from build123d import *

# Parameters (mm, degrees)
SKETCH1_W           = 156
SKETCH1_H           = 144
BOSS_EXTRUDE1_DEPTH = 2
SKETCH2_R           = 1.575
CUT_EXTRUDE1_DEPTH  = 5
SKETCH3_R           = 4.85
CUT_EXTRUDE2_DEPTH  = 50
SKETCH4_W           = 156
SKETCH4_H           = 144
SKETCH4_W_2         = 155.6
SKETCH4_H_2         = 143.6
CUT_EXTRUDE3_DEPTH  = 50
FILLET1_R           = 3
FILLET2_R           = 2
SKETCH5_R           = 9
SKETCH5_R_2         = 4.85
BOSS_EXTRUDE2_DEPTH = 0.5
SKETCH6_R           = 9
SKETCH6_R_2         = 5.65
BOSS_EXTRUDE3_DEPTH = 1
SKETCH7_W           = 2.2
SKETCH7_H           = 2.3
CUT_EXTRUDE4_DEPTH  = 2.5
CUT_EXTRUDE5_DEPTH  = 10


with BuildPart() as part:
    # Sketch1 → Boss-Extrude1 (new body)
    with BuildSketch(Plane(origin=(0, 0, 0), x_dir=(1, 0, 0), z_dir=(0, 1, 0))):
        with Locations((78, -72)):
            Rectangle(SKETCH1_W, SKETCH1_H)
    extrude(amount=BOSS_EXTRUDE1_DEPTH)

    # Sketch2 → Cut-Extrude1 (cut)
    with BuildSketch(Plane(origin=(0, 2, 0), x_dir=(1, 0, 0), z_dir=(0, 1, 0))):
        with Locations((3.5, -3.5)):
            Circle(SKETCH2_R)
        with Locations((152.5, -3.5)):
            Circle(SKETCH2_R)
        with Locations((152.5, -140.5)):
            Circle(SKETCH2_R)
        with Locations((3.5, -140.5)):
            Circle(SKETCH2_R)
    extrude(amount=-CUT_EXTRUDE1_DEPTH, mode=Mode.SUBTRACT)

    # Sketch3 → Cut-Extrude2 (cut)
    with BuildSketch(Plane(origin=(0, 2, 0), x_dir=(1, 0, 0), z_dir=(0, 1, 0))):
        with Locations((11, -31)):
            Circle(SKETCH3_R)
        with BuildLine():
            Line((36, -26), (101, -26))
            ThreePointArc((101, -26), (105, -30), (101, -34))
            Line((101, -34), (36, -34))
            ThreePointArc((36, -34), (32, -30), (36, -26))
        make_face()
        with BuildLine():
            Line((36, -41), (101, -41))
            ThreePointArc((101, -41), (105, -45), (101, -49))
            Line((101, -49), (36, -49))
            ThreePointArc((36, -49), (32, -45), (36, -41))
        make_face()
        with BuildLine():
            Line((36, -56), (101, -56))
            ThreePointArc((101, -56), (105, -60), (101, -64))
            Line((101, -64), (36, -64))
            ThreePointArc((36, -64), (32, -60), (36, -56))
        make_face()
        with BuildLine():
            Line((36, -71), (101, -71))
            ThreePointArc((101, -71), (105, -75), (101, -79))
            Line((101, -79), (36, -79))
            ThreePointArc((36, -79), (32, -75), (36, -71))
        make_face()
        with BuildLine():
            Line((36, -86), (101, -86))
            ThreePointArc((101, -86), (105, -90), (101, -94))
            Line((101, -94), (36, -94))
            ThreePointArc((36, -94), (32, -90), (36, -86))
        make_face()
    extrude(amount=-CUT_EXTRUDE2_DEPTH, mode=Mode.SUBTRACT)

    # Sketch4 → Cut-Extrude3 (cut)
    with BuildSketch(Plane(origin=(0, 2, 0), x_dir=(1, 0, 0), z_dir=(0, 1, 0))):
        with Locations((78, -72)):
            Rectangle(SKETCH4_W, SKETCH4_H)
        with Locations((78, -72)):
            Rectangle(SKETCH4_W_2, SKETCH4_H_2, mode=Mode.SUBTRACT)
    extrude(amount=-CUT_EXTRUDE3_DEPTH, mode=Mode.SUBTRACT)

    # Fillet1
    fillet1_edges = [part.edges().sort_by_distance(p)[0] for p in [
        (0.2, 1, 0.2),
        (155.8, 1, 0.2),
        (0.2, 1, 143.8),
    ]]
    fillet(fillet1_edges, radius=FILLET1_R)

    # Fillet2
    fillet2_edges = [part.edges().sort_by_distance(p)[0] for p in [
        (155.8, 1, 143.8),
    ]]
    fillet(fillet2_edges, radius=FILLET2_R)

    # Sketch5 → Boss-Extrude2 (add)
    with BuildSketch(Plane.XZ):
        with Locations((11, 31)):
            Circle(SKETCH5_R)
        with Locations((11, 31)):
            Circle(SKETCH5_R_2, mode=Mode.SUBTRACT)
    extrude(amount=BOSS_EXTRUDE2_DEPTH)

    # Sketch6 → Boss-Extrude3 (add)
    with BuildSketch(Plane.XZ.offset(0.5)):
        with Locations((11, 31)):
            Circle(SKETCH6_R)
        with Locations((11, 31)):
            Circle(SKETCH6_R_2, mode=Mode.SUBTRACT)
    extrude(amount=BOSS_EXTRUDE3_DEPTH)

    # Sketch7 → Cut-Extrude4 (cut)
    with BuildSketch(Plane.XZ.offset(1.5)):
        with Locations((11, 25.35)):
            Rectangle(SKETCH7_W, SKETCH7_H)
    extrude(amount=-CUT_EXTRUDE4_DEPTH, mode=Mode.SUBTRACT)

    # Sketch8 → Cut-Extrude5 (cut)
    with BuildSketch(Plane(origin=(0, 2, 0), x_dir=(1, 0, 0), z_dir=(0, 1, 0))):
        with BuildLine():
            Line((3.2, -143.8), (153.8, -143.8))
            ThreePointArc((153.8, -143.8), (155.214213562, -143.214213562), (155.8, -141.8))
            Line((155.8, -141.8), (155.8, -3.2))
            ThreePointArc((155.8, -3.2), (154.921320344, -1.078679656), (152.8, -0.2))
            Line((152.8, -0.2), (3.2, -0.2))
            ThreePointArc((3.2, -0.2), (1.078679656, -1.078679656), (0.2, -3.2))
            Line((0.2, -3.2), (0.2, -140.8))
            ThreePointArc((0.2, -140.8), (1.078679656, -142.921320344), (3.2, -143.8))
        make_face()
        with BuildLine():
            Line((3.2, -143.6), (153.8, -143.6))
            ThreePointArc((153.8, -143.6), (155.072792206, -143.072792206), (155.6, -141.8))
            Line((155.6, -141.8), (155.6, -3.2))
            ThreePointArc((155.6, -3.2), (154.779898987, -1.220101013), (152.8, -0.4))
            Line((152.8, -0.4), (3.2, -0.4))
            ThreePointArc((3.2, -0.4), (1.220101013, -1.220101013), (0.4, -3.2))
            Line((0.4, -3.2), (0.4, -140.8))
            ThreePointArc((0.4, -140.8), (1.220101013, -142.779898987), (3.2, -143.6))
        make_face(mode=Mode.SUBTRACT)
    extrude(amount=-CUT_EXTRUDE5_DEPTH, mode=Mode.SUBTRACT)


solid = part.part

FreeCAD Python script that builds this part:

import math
import FreeCAD as App
import Part
import Sketcher
from FreeCAD import Vector
Q = App.Units.Quantity


def edges_at(feature, points):
    """Names of the edges that pass closest to the given points."""
    edges = feature.Shape.Edges
    near = lambda p: min(range(len(edges)), key=lambda i: edges[i].distToShape(Part.Vertex(*p))[0])
    return sorted({f"Edge{near(p) + 1}" for p in points})


def add_polygon(sketch, points):
    """Adds a closed chain of lines whose ends are joined by coincident constraints."""
    first, n = sketch.GeometryCount, len(points)
    for a, b in zip(points, points[1:] + points[:1]):
        sketch.addGeometry(Part.LineSegment(App.Vector(*a, 0), App.Vector(*b, 0)), False)
    for i in range(n):
        sketch.addConstraint(Sketcher.Constraint("Coincident", first + i, 2, first + (i + 1) % n, 1))

doc = App.newDocument("Part")
body = doc.addObject("PartDesign::Body", "Body")

# Sketch on XZ plane
sketch1 = body.newObject("Sketcher::SketchObject", "Sketch")
sketch1.AttachmentSupport = (doc.getObject("XZ_Plane"), [""])
sketch1.MapMode = "FlatFace"
add_polygon(sketch1, [(0, 0), (0, 144), (156, 144), (156, 0)])  # lines 0-3
sketch1.addConstraint(Sketcher.Constraint("Vertical", 0))
sketch1.addConstraint(Sketcher.Constraint("Horizontal", 1))
sketch1.addConstraint(Sketcher.Constraint("Vertical", 2))
sketch1.addConstraint(Sketcher.Constraint("Horizontal", 3))
sketch1.addConstraint(Sketcher.Constraint("Coincident", 3, 2, -1, 1))
sketch1.addConstraint(Sketcher.Constraint("DistanceX", 1, 1, 1, 2, Q("156 mm")))
sketch1.addConstraint(Sketcher.Constraint("DistanceY", 0, 1, 0, 2, Q("144 mm")))
pad1 = body.newObject("PartDesign::Pad", "Pad")
pad1.Profile = sketch1
pad1.Length = 2
pad1.Reversed = True

# Sketch on XZ plane
sketch2 = body.newObject("Sketcher::SketchObject", "Sketch001")
sketch2.AttachmentSupport = (doc.getObject("XZ_Plane"), [""])
sketch2.MapMode = "FlatFace"
sketch2.AttachmentOffset = App.Placement(Vector(0, 0, -2), App.Rotation())
sketch2.addGeometry(Part.Circle(Vector(3.5, 3.5, 0), Vector(0, 0, 1), 1.6), False)
sketch2.addGeometry(Part.Circle(Vector(152.5, 3.5, 0), Vector(0, 0, 1), 1.6), False)
sketch2.addGeometry(Part.Circle(Vector(152.5, 140.5, 0), Vector(0, 0, 1), 1.6), False)
sketch2.addGeometry(Part.Circle(Vector(3.5, 140.5, 0), Vector(0, 0, 1), 1.6), False)
sketch2.addConstraint(Sketcher.Constraint("Equal", 0, 1))
sketch2.addConstraint(Sketcher.Constraint("Equal", 1, 2))
sketch2.addConstraint(Sketcher.Constraint("Equal", 2, 3))
sketch2.addConstraint(Sketcher.Constraint("Horizontal", 0, 3, 1, 3))
sketch2.addConstraint(Sketcher.Constraint("Horizontal", 2, 3, 3, 3))
sketch2.addConstraint(Sketcher.Constraint("Vertical", 1, 3, 2, 3))
sketch2.addConstraint(Sketcher.Constraint("Vertical", 0, 3, 3, 3))
sketch2.addConstraint(Sketcher.Constraint("Diameter", 0, Q("3.15 mm")))
sketch2.addConstraint(Sketcher.Constraint("DistanceX", 0, 3, 1, 3, Q("149 mm")))
sketch2.addConstraint(Sketcher.Constraint("DistanceY", 1, 3, 2, 3, Q("137 mm")))
sketch2.addConstraint(Sketcher.Constraint("DistanceX", -1, 1, 0, 3, Q("3.5 mm")))
sketch2.addConstraint(Sketcher.Constraint("DistanceY", -1, 1, 0, 3, Q("3.5 mm")))
pocket1 = body.newObject("PartDesign::Pocket", "Pocket")
pocket1.Profile = sketch2
pocket1.Length = 5
pocket1.Reversed = True

# Sketch on XZ plane
sketch3 = body.newObject("Sketcher::SketchObject", "Sketch002")
sketch3.AttachmentSupport = (doc.getObject("XZ_Plane"), [""])
sketch3.MapMode = "FlatFace"
sketch3.AttachmentOffset = App.Placement(Vector(0, 0, -2), App.Rotation())
sketch3.addGeometry(Part.Circle(Vector(11, 31, 0), Vector(0, 0, 1), 4.8), False)
sketch3.addGeometry(Part.LineSegment(Vector(101, 26, 0), Vector(36, 26, 0)), False)
sketch3.addGeometry(Part.ArcOfCircle(Part.Circle(Vector(36, 30, 0), Vector(0, 0, 1), 4), math.radians(90), math.radians(270)), False)
sketch3.addGeometry(Part.LineSegment(Vector(36, 34, 0), Vector(101, 34, 0)), False)
sketch3.addGeometry(Part.ArcOfCircle(Part.Circle(Vector(101, 30, 0), Vector(0, 0, 1), 4), math.radians(-90), math.radians(90)), False)
sketch3.addGeometry(Part.LineSegment(Vector(101, 41, 0), Vector(36, 41, 0)), False)
sketch3.addGeometry(Part.ArcOfCircle(Part.Circle(Vector(36, 45, 0), Vector(0, 0, 1), 4), math.radians(90), math.radians(270)), False)
sketch3.addGeometry(Part.LineSegment(Vector(36, 49, 0), Vector(101, 49, 0)), False)
sketch3.addGeometry(Part.ArcOfCircle(Part.Circle(Vector(101, 45, 0), Vector(0, 0, 1), 4), math.radians(-90), math.radians(90)), False)
sketch3.addGeometry(Part.LineSegment(Vector(101, 56, 0), Vector(36, 56, 0)), False)
sketch3.addGeometry(Part.ArcOfCircle(Part.Circle(Vector(36, 60, 0), Vector(0, 0, 1), 4), math.radians(90), math.radians(270)), False)
sketch3.addGeometry(Part.LineSegment(Vector(36, 64, 0), Vector(101, 64, 0)), False)
sketch3.addGeometry(Part.ArcOfCircle(Part.Circle(Vector(101, 60, 0), Vector(0, 0, 1), 4), math.radians(-90), math.radians(90)), False)
sketch3.addGeometry(Part.LineSegment(Vector(101, 71, 0), Vector(36, 71, 0)), False)
sketch3.addGeometry(Part.ArcOfCircle(Part.Circle(Vector(36, 75, 0), Vector(0, 0, 1), 4), math.radians(90), math.radians(270)), False)
sketch3.addGeometry(Part.LineSegment(Vector(36, 79, 0), Vector(101, 79, 0)), False)
sketch3.addGeometry(Part.ArcOfCircle(Part.Circle(Vector(101, 75, 0), Vector(0, 0, 1), 4), math.radians(-90), math.radians(90)), False)
sketch3.addGeometry(Part.LineSegment(Vector(101, 86, 0), Vector(36, 86, 0)), False)
sketch3.addGeometry(Part.ArcOfCircle(Part.Circle(Vector(36, 90, 0), Vector(0, 0, 1), 4), math.radians(90), math.radians(270)), False)
sketch3.addGeometry(Part.LineSegment(Vector(36, 94, 0), Vector(101, 94, 0)), False)
sketch3.addGeometry(Part.ArcOfCircle(Part.Circle(Vector(101, 90, 0), Vector(0, 0, 1), 4), math.radians(-90), math.radians(90)), False)
sketch3.addConstraint(Sketcher.Constraint("Tangent", 1, 2, 2, 2))
sketch3.addConstraint(Sketcher.Constraint("Tangent", 2, 1, 3, 1))
sketch3.addConstraint(Sketcher.Constraint("Tangent", 3, 2, 4, 2))
sketch3.addConstraint(Sketcher.Constraint("Tangent", 4, 1, 1, 1))
sketch3.addConstraint(Sketcher.Constraint("Tangent", 5, 2, 6, 2))
sketch3.addConstraint(Sketcher.Constraint("Tangent", 6, 1, 7, 1))
sketch3.addConstraint(Sketcher.Constraint("Tangent", 7, 2, 8, 2))
sketch3.addConstraint(Sketcher.Constraint("Tangent", 8, 1, 5, 1))
sketch3.addConstraint(Sketcher.Constraint("Tangent", 9, 2, 10, 2))
sketch3.addConstraint(Sketcher.Constraint("Tangent", 10, 1, 11, 1))
sketch3.addConstraint(Sketcher.Constraint("Tangent", 11, 2, 12, 2))
sketch3.addConstraint(Sketcher.Constraint("Tangent", 12, 1, 9, 1))
sketch3.addConstraint(Sketcher.Constraint("Tangent", 13, 2, 14, 2))
sketch3.addConstraint(Sketcher.Constraint("Tangent", 14, 1, 15, 1))
sketch3.addConstraint(Sketcher.Constraint("Tangent", 15, 2, 16, 2))
sketch3.addConstraint(Sketcher.Constraint("Tangent", 16, 1, 13, 1))
sketch3.addConstraint(Sketcher.Constraint("Tangent", 17, 2, 18, 2))
sketch3.addConstraint(Sketcher.Constraint("Tangent", 18, 1, 19, 1))
sketch3.addConstraint(Sketcher.Constraint("Tangent", 19, 2, 20, 2))
sketch3.addConstraint(Sketcher.Constraint("Tangent", 20, 1, 17, 1))
sketch3.addConstraint(Sketcher.Constraint("Horizontal", 1))
sketch3.addConstraint(Sketcher.Constraint("Horizontal", 3))
sketch3.addConstraint(Sketcher.Constraint("Horizontal", 5))
sketch3.addConstraint(Sketcher.Constraint("Horizontal", 7))
sketch3.addConstraint(Sketcher.Constraint("Horizontal", 9))
sketch3.addConstraint(Sketcher.Constraint("Horizontal", 11))
sketch3.addConstraint(Sketcher.Constraint("Horizontal", 13))
sketch3.addConstraint(Sketcher.Constraint("Horizontal", 15))
sketch3.addConstraint(Sketcher.Constraint("Horizontal", 17))
sketch3.addConstraint(Sketcher.Constraint("Horizontal", 19))
sketch3.addConstraint(Sketcher.Constraint("Equal", 4, 6))
sketch3.addConstraint(Sketcher.Constraint("Equal", 8, 10))
sketch3.addConstraint(Sketcher.Constraint("Equal", 12, 14))
sketch3.addConstraint(Sketcher.Constraint("Equal", 16, 18))
sketch3.addConstraint(Sketcher.Constraint("Vertical", 2, 3, 6, 3))
sketch3.addConstraint(Sketcher.Constraint("Vertical", 4, 3, 8, 3))
sketch3.addConstraint(Sketcher.Constraint("Vertical", 6, 3, 10, 3))
sketch3.addConstraint(Sketcher.Constraint("Vertical", 8, 3, 12, 3))
sketch3.addConstraint(Sketcher.Constraint("Vertical", 10, 3, 14, 3))
sketch3.addConstraint(Sketcher.Constraint("Vertical", 12, 3, 16, 3))
sketch3.addConstraint(Sketcher.Constraint("Vertical", 14, 3, 18, 3))
sketch3.addConstraint(Sketcher.Constraint("Vertical", 16, 3, 20, 3))
sketch3.addConstraint(Sketcher.Constraint("Radius", 2, Q("4 mm")))
sketch3.addConstraint(Sketcher.Constraint("Diameter", 0, Q("9.7 mm")))
sketch3.addConstraint(Sketcher.Constraint("DistanceX", 1, 2, 1, 1, Q("65 mm")))
sketch3.addConstraint(Sketcher.Constraint("DistanceX", -1, 1, 0, 3, Q("11 mm")))
sketch3.addConstraint(Sketcher.Constraint("DistanceY", -1, 1, 0, 3, Q("31 mm")))
sketch3.addConstraint(Sketcher.Constraint("DistanceX", -1, 1, 2, 3, Q("36 mm")))
sketch3.addConstraint(Sketcher.Constraint("DistanceY", -1, 1, 2, 3, Q("30 mm")))
sketch3.addConstraint(Sketcher.Constraint("DistanceY", -1, 1, 6, 3, Q("45 mm")))
sketch3.addConstraint(Sketcher.Constraint("DistanceY", -1, 1, 10, 3, Q("60 mm")))
sketch3.addConstraint(Sketcher.Constraint("DistanceY", -1, 1, 14, 3, Q("75 mm")))
sketch3.addConstraint(Sketcher.Constraint("DistanceY", -1, 1, 18, 3, Q("90 mm")))
pocket2 = body.newObject("PartDesign::Pocket", "Pocket001")
pocket2.Profile = sketch3
pocket2.Length = 50
pocket2.Reversed = True

# Sketch on XZ plane
sketch4 = body.newObject("Sketcher::SketchObject", "Sketch003")
sketch4.AttachmentSupport = (doc.getObject("XZ_Plane"), [""])
sketch4.MapMode = "FlatFace"
sketch4.AttachmentOffset = App.Placement(Vector(0, 0, -2), App.Rotation())
add_polygon(sketch4, [(0, 0), (0, 144), (156, 144), (156, 0)])  # lines 0-3
add_polygon(sketch4, [(156, 144), (0, 144), (0, 0), (156, 0)])  # lines 4-7
sketch4.addConstraint(Sketcher.Constraint("Vertical", 0))
sketch4.addConstraint(Sketcher.Constraint("Horizontal", 1))
sketch4.addConstraint(Sketcher.Constraint("Vertical", 2))
sketch4.addConstraint(Sketcher.Constraint("Horizontal", 3))
sketch4.addConstraint(Sketcher.Constraint("Horizontal", 4))
sketch4.addConstraint(Sketcher.Constraint("Vertical", 5))
sketch4.addConstraint(Sketcher.Constraint("Horizontal", 6))
sketch4.addConstraint(Sketcher.Constraint("Vertical", 7))
sketch4.addConstraint(Sketcher.Constraint("Coincident", 3, 2, -1, 1))
sketch4.addConstraint(Sketcher.Constraint("DistanceX", 1, 1, 1, 2, Q("156 mm")))
sketch4.addConstraint(Sketcher.Constraint("DistanceY", 0, 1, 0, 2, Q("144 mm")))
sketch4.addConstraint(Sketcher.Constraint("DistanceX", 4, 2, 4, 1, Q("155.6 mm")))
sketch4.addConstraint(Sketcher.Constraint("DistanceY", 5, 2, 5, 1, Q("143.6 mm")))
sketch4.addConstraint(Sketcher.Constraint("DistanceX", -1, 1, 4, 2, Q("0.2 mm")))
sketch4.addConstraint(Sketcher.Constraint("DistanceY", -1, 1, 4, 2, Q("143.8 mm")))
pocket3 = body.newObject("PartDesign::Pocket", "Pocket002")
pocket3.Profile = sketch4
pocket3.Length = 50
pocket3.Reversed = True
doc.recompute()

fillet = body.newObject("PartDesign::Fillet", "Fillet")
fillet.Base = (pocket3, edges_at(pocket3, [(0.2, 1, 0.2), (155.8, 1, 0.2), (0.2, 1, 143.8)]))
fillet.Radius = 3
doc.recompute()

fillet2 = body.newObject("PartDesign::Fillet", "Fillet001")
fillet2.Base = (fillet, edges_at(fillet, [(155.8, 1, 143.8)]))
fillet2.Radius = 2

# Sketch on XZ plane
sketch5 = body.newObject("Sketcher::SketchObject", "Sketch004")
sketch5.AttachmentSupport = (doc.getObject("XZ_Plane"), [""])
sketch5.MapMode = "FlatFace"
sketch5.addGeometry(Part.Circle(Vector(11, 31, 0), Vector(0, 0, 1), 9), False)
sketch5.addGeometry(Part.Circle(Vector(11, 31, 0), Vector(0, 0, 1), 4.8), False)
sketch5.addConstraint(Sketcher.Constraint("Coincident", 1, 3, 0, 3))
sketch5.addConstraint(Sketcher.Constraint("Diameter", 0, Q("18 mm")))
sketch5.addConstraint(Sketcher.Constraint("Diameter", 1, Q("9.7 mm")))
sketch5.addConstraint(Sketcher.Constraint("DistanceX", -1, 1, 0, 3, Q("11 mm")))
sketch5.addConstraint(Sketcher.Constraint("DistanceY", -1, 1, 0, 3, Q("31 mm")))
pad2 = body.newObject("PartDesign::Pad", "Pad001")
pad2.Profile = sketch5
pad2.Length = 0.5

# Sketch on XZ plane
sketch6 = body.newObject("Sketcher::SketchObject", "Sketch005")
sketch6.AttachmentSupport = (doc.getObject("XZ_Plane"), [""])
sketch6.MapMode = "FlatFace"
sketch6.AttachmentOffset = App.Placement(Vector(0, 0, 0.5), App.Rotation())
sketch6.addGeometry(Part.Circle(Vector(11, 31, 0), Vector(0, 0, 1), 9), False)
sketch6.addGeometry(Part.Circle(Vector(11, 31, 0), Vector(0, 0, 1), 6), False)
sketch6.addConstraint(Sketcher.Constraint("Coincident", 1, 3, 0, 3))
sketch6.addConstraint(Sketcher.Constraint("Diameter", 0, Q("18 mm")))
sketch6.addConstraint(Sketcher.Constraint("Diameter", 1, Q("11.3 mm")))
sketch6.addConstraint(Sketcher.Constraint("DistanceX", -1, 1, 0, 3, Q("11 mm")))
sketch6.addConstraint(Sketcher.Constraint("DistanceY", -1, 1, 0, 3, Q("31 mm")))
pad3 = body.newObject("PartDesign::Pad", "Pad002")
pad3.Profile = sketch6
pad3.Length = 1

# Sketch on XZ plane
sketch7 = body.newObject("Sketcher::SketchObject", "Sketch006")
sketch7.AttachmentSupport = (doc.getObject("XZ_Plane"), [""])
sketch7.MapMode = "FlatFace"
sketch7.AttachmentOffset = App.Placement(Vector(0, 0, 1.5), App.Rotation())
add_polygon(sketch7, [(9.9, 26.5), (9.9, 24.2), (12.1, 24.2), (12.1, 26.5)])  # lines 0-3
sketch7.addConstraint(Sketcher.Constraint("Vertical", 0))
sketch7.addConstraint(Sketcher.Constraint("Horizontal", 1))
sketch7.addConstraint(Sketcher.Constraint("Vertical", 2))
sketch7.addConstraint(Sketcher.Constraint("Horizontal", 3))
sketch7.addConstraint(Sketcher.Constraint("DistanceX", 1, 1, 1, 2, Q("2.2 mm")))
sketch7.addConstraint(Sketcher.Constraint("DistanceY", 0, 2, 0, 1, Q("2.3 mm")))
sketch7.addConstraint(Sketcher.Constraint("DistanceX", -1, 1, 0, 2, Q("9.9 mm")))
sketch7.addConstraint(Sketcher.Constraint("DistanceY", -1, 1, 0, 2, Q("24.2 mm")))
pocket4 = body.newObject("PartDesign::Pocket", "Pocket003")
pocket4.Profile = sketch7
pocket4.Length = 2.5

# Sketch on XZ plane
sketch8 = body.newObject("Sketcher::SketchObject", "Sketch007")
sketch8.AttachmentSupport = (doc.getObject("XZ_Plane"), [""])
sketch8.MapMode = "FlatFace"
sketch8.AttachmentOffset = App.Placement(Vector(0, 0, -2), App.Rotation())
sketch8.addGeometry(Part.LineSegment(Vector(3.2, 143.8, 0), Vector(153.8, 143.8, 0)), False)
sketch8.addGeometry(Part.ArcOfCircle(Part.Circle(Vector(153.8, 141.8, 0), Vector(0, 0, 1), 2), math.radians(0), math.radians(90)), False)
sketch8.addGeometry(Part.LineSegment(Vector(155.8, 141.8, 0), Vector(155.8, 3.2, 0)), False)
sketch8.addGeometry(Part.ArcOfCircle(Part.Circle(Vector(152.8, 3.2, 0), Vector(0, 0, 1), 3), math.radians(-90), math.radians(0)), False)
sketch8.addGeometry(Part.LineSegment(Vector(152.8, 0.2, 0), Vector(3.2, 0.2, 0)), False)
sketch8.addGeometry(Part.ArcOfCircle(Part.Circle(Vector(3.2, 3.2, 0), Vector(0, 0, 1), 3), math.radians(180), math.radians(270)), False)
sketch8.addGeometry(Part.LineSegment(Vector(0.2, 3.2, 0), Vector(0.2, 140.8, 0)), False)
sketch8.addGeometry(Part.ArcOfCircle(Part.Circle(Vector(3.2, 140.8, 0), Vector(0, 0, 1), 3), math.radians(90), math.radians(180)), False)
sketch8.addGeometry(Part.LineSegment(Vector(153.8, 143.6, 0), Vector(3.2, 143.6, 0)), False)
sketch8.addGeometry(Part.ArcOfCircle(Part.Circle(Vector(3.2, 140.8, 0), Vector(0, 0, 1), 2.8), math.radians(90), math.radians(180)), False)
sketch8.addGeometry(Part.LineSegment(Vector(0.4, 140.8, 0), Vector(0.4, 3.2, 0)), False)
sketch8.addGeometry(Part.ArcOfCircle(Part.Circle(Vector(3.2, 3.2, 0), Vector(0, 0, 1), 2.8), math.radians(-180), math.radians(-90)), False)
sketch8.addGeometry(Part.LineSegment(Vector(3.2, 0.4, 0), Vector(152.8, 0.4, 0)), False)
sketch8.addGeometry(Part.ArcOfCircle(Part.Circle(Vector(152.8, 3.2, 0), Vector(0, 0, 1), 2.8), math.radians(-90), math.radians(0)), False)
sketch8.addGeometry(Part.LineSegment(Vector(155.6, 3.2, 0), Vector(155.6, 141.8, 0)), False)
sketch8.addGeometry(Part.ArcOfCircle(Part.Circle(Vector(153.8, 141.8, 0), Vector(0, 0, 1), 1.8), math.radians(0), math.radians(90)), False)
sketch8.addConstraint(Sketcher.Constraint("Tangent", 0, 2, 1, 2))
sketch8.addConstraint(Sketcher.Constraint("Tangent", 1, 1, 2, 1))
sketch8.addConstraint(Sketcher.Constraint("Tangent", 2, 2, 3, 2))
sketch8.addConstraint(Sketcher.Constraint("Tangent", 3, 1, 4, 1))
sketch8.addConstraint(Sketcher.Constraint("Tangent", 4, 2, 5, 2))
sketch8.addConstraint(Sketcher.Constraint("Tangent", 5, 1, 6, 1))
sketch8.addConstraint(Sketcher.Constraint("Tangent", 6, 2, 7, 2))
sketch8.addConstraint(Sketcher.Constraint("Tangent", 7, 1, 0, 1))
sketch8.addConstraint(Sketcher.Constraint("Tangent", 8, 2, 9, 1))
sketch8.addConstraint(Sketcher.Constraint("Tangent", 9, 2, 10, 1))
sketch8.addConstraint(Sketcher.Constraint("Tangent", 10, 2, 11, 1))
sketch8.addConstraint(Sketcher.Constraint("Tangent", 11, 2, 12, 1))
sketch8.addConstraint(Sketcher.Constraint("Tangent", 12, 2, 13, 1))
sketch8.addConstraint(Sketcher.Constraint("Tangent", 13, 2, 14, 1))
sketch8.addConstraint(Sketcher.Constraint("Tangent", 14, 2, 15, 1))
sketch8.addConstraint(Sketcher.Constraint("Tangent", 15, 2, 8, 1))
sketch8.addConstraint(Sketcher.Constraint("Horizontal", 0))
sketch8.addConstraint(Sketcher.Constraint("Vertical", 2))
sketch8.addConstraint(Sketcher.Constraint("Horizontal", 4))
sketch8.addConstraint(Sketcher.Constraint("Vertical", 6))
sketch8.addConstraint(Sketcher.Constraint("Horizontal", 8))
sketch8.addConstraint(Sketcher.Constraint("Vertical", 10))
sketch8.addConstraint(Sketcher.Constraint("Horizontal", 12))
sketch8.addConstraint(Sketcher.Constraint("Vertical", 14))
sketch8.addConstraint(Sketcher.Constraint("Coincident", 9, 3, 7, 3))
sketch8.addConstraint(Sketcher.Constraint("Coincident", 11, 3, 5, 3))
sketch8.addConstraint(Sketcher.Constraint("Coincident", 13, 3, 3, 3))
sketch8.addConstraint(Sketcher.Constraint("Equal", 3, 5))
sketch8.addConstraint(Sketcher.Constraint("Equal", 5, 7))
sketch8.addConstraint(Sketcher.Constraint("Horizontal", 15, 3, 1, 1))
sketch8.addConstraint(Sketcher.Constraint("Radius", 1, Q("2 mm")))
sketch8.addConstraint(Sketcher.Constraint("Radius", 3, Q("3 mm")))
sketch8.addConstraint(Sketcher.Constraint("Radius", 9, Q("2.8 mm")))
sketch8.addConstraint(Sketcher.Constraint("DistanceX", 0, 1, 0, 2, Q("150.6 mm")))
sketch8.addConstraint(Sketcher.Constraint("DistanceY", 2, 2, 2, 1, Q("138.6 mm")))
sketch8.addConstraint(Sketcher.Constraint("DistanceX", -1, 1, 1, 3, Q("153.8 mm")))
sketch8.addConstraint(Sketcher.Constraint("DistanceY", -1, 1, 1, 3, Q("141.8 mm")))
pocket5 = body.newObject("PartDesign::Pocket", "Pocket004")
pocket5.Profile = sketch8
pocket5.Length = 10
pocket5.Reversed = True

doc.recompute()
